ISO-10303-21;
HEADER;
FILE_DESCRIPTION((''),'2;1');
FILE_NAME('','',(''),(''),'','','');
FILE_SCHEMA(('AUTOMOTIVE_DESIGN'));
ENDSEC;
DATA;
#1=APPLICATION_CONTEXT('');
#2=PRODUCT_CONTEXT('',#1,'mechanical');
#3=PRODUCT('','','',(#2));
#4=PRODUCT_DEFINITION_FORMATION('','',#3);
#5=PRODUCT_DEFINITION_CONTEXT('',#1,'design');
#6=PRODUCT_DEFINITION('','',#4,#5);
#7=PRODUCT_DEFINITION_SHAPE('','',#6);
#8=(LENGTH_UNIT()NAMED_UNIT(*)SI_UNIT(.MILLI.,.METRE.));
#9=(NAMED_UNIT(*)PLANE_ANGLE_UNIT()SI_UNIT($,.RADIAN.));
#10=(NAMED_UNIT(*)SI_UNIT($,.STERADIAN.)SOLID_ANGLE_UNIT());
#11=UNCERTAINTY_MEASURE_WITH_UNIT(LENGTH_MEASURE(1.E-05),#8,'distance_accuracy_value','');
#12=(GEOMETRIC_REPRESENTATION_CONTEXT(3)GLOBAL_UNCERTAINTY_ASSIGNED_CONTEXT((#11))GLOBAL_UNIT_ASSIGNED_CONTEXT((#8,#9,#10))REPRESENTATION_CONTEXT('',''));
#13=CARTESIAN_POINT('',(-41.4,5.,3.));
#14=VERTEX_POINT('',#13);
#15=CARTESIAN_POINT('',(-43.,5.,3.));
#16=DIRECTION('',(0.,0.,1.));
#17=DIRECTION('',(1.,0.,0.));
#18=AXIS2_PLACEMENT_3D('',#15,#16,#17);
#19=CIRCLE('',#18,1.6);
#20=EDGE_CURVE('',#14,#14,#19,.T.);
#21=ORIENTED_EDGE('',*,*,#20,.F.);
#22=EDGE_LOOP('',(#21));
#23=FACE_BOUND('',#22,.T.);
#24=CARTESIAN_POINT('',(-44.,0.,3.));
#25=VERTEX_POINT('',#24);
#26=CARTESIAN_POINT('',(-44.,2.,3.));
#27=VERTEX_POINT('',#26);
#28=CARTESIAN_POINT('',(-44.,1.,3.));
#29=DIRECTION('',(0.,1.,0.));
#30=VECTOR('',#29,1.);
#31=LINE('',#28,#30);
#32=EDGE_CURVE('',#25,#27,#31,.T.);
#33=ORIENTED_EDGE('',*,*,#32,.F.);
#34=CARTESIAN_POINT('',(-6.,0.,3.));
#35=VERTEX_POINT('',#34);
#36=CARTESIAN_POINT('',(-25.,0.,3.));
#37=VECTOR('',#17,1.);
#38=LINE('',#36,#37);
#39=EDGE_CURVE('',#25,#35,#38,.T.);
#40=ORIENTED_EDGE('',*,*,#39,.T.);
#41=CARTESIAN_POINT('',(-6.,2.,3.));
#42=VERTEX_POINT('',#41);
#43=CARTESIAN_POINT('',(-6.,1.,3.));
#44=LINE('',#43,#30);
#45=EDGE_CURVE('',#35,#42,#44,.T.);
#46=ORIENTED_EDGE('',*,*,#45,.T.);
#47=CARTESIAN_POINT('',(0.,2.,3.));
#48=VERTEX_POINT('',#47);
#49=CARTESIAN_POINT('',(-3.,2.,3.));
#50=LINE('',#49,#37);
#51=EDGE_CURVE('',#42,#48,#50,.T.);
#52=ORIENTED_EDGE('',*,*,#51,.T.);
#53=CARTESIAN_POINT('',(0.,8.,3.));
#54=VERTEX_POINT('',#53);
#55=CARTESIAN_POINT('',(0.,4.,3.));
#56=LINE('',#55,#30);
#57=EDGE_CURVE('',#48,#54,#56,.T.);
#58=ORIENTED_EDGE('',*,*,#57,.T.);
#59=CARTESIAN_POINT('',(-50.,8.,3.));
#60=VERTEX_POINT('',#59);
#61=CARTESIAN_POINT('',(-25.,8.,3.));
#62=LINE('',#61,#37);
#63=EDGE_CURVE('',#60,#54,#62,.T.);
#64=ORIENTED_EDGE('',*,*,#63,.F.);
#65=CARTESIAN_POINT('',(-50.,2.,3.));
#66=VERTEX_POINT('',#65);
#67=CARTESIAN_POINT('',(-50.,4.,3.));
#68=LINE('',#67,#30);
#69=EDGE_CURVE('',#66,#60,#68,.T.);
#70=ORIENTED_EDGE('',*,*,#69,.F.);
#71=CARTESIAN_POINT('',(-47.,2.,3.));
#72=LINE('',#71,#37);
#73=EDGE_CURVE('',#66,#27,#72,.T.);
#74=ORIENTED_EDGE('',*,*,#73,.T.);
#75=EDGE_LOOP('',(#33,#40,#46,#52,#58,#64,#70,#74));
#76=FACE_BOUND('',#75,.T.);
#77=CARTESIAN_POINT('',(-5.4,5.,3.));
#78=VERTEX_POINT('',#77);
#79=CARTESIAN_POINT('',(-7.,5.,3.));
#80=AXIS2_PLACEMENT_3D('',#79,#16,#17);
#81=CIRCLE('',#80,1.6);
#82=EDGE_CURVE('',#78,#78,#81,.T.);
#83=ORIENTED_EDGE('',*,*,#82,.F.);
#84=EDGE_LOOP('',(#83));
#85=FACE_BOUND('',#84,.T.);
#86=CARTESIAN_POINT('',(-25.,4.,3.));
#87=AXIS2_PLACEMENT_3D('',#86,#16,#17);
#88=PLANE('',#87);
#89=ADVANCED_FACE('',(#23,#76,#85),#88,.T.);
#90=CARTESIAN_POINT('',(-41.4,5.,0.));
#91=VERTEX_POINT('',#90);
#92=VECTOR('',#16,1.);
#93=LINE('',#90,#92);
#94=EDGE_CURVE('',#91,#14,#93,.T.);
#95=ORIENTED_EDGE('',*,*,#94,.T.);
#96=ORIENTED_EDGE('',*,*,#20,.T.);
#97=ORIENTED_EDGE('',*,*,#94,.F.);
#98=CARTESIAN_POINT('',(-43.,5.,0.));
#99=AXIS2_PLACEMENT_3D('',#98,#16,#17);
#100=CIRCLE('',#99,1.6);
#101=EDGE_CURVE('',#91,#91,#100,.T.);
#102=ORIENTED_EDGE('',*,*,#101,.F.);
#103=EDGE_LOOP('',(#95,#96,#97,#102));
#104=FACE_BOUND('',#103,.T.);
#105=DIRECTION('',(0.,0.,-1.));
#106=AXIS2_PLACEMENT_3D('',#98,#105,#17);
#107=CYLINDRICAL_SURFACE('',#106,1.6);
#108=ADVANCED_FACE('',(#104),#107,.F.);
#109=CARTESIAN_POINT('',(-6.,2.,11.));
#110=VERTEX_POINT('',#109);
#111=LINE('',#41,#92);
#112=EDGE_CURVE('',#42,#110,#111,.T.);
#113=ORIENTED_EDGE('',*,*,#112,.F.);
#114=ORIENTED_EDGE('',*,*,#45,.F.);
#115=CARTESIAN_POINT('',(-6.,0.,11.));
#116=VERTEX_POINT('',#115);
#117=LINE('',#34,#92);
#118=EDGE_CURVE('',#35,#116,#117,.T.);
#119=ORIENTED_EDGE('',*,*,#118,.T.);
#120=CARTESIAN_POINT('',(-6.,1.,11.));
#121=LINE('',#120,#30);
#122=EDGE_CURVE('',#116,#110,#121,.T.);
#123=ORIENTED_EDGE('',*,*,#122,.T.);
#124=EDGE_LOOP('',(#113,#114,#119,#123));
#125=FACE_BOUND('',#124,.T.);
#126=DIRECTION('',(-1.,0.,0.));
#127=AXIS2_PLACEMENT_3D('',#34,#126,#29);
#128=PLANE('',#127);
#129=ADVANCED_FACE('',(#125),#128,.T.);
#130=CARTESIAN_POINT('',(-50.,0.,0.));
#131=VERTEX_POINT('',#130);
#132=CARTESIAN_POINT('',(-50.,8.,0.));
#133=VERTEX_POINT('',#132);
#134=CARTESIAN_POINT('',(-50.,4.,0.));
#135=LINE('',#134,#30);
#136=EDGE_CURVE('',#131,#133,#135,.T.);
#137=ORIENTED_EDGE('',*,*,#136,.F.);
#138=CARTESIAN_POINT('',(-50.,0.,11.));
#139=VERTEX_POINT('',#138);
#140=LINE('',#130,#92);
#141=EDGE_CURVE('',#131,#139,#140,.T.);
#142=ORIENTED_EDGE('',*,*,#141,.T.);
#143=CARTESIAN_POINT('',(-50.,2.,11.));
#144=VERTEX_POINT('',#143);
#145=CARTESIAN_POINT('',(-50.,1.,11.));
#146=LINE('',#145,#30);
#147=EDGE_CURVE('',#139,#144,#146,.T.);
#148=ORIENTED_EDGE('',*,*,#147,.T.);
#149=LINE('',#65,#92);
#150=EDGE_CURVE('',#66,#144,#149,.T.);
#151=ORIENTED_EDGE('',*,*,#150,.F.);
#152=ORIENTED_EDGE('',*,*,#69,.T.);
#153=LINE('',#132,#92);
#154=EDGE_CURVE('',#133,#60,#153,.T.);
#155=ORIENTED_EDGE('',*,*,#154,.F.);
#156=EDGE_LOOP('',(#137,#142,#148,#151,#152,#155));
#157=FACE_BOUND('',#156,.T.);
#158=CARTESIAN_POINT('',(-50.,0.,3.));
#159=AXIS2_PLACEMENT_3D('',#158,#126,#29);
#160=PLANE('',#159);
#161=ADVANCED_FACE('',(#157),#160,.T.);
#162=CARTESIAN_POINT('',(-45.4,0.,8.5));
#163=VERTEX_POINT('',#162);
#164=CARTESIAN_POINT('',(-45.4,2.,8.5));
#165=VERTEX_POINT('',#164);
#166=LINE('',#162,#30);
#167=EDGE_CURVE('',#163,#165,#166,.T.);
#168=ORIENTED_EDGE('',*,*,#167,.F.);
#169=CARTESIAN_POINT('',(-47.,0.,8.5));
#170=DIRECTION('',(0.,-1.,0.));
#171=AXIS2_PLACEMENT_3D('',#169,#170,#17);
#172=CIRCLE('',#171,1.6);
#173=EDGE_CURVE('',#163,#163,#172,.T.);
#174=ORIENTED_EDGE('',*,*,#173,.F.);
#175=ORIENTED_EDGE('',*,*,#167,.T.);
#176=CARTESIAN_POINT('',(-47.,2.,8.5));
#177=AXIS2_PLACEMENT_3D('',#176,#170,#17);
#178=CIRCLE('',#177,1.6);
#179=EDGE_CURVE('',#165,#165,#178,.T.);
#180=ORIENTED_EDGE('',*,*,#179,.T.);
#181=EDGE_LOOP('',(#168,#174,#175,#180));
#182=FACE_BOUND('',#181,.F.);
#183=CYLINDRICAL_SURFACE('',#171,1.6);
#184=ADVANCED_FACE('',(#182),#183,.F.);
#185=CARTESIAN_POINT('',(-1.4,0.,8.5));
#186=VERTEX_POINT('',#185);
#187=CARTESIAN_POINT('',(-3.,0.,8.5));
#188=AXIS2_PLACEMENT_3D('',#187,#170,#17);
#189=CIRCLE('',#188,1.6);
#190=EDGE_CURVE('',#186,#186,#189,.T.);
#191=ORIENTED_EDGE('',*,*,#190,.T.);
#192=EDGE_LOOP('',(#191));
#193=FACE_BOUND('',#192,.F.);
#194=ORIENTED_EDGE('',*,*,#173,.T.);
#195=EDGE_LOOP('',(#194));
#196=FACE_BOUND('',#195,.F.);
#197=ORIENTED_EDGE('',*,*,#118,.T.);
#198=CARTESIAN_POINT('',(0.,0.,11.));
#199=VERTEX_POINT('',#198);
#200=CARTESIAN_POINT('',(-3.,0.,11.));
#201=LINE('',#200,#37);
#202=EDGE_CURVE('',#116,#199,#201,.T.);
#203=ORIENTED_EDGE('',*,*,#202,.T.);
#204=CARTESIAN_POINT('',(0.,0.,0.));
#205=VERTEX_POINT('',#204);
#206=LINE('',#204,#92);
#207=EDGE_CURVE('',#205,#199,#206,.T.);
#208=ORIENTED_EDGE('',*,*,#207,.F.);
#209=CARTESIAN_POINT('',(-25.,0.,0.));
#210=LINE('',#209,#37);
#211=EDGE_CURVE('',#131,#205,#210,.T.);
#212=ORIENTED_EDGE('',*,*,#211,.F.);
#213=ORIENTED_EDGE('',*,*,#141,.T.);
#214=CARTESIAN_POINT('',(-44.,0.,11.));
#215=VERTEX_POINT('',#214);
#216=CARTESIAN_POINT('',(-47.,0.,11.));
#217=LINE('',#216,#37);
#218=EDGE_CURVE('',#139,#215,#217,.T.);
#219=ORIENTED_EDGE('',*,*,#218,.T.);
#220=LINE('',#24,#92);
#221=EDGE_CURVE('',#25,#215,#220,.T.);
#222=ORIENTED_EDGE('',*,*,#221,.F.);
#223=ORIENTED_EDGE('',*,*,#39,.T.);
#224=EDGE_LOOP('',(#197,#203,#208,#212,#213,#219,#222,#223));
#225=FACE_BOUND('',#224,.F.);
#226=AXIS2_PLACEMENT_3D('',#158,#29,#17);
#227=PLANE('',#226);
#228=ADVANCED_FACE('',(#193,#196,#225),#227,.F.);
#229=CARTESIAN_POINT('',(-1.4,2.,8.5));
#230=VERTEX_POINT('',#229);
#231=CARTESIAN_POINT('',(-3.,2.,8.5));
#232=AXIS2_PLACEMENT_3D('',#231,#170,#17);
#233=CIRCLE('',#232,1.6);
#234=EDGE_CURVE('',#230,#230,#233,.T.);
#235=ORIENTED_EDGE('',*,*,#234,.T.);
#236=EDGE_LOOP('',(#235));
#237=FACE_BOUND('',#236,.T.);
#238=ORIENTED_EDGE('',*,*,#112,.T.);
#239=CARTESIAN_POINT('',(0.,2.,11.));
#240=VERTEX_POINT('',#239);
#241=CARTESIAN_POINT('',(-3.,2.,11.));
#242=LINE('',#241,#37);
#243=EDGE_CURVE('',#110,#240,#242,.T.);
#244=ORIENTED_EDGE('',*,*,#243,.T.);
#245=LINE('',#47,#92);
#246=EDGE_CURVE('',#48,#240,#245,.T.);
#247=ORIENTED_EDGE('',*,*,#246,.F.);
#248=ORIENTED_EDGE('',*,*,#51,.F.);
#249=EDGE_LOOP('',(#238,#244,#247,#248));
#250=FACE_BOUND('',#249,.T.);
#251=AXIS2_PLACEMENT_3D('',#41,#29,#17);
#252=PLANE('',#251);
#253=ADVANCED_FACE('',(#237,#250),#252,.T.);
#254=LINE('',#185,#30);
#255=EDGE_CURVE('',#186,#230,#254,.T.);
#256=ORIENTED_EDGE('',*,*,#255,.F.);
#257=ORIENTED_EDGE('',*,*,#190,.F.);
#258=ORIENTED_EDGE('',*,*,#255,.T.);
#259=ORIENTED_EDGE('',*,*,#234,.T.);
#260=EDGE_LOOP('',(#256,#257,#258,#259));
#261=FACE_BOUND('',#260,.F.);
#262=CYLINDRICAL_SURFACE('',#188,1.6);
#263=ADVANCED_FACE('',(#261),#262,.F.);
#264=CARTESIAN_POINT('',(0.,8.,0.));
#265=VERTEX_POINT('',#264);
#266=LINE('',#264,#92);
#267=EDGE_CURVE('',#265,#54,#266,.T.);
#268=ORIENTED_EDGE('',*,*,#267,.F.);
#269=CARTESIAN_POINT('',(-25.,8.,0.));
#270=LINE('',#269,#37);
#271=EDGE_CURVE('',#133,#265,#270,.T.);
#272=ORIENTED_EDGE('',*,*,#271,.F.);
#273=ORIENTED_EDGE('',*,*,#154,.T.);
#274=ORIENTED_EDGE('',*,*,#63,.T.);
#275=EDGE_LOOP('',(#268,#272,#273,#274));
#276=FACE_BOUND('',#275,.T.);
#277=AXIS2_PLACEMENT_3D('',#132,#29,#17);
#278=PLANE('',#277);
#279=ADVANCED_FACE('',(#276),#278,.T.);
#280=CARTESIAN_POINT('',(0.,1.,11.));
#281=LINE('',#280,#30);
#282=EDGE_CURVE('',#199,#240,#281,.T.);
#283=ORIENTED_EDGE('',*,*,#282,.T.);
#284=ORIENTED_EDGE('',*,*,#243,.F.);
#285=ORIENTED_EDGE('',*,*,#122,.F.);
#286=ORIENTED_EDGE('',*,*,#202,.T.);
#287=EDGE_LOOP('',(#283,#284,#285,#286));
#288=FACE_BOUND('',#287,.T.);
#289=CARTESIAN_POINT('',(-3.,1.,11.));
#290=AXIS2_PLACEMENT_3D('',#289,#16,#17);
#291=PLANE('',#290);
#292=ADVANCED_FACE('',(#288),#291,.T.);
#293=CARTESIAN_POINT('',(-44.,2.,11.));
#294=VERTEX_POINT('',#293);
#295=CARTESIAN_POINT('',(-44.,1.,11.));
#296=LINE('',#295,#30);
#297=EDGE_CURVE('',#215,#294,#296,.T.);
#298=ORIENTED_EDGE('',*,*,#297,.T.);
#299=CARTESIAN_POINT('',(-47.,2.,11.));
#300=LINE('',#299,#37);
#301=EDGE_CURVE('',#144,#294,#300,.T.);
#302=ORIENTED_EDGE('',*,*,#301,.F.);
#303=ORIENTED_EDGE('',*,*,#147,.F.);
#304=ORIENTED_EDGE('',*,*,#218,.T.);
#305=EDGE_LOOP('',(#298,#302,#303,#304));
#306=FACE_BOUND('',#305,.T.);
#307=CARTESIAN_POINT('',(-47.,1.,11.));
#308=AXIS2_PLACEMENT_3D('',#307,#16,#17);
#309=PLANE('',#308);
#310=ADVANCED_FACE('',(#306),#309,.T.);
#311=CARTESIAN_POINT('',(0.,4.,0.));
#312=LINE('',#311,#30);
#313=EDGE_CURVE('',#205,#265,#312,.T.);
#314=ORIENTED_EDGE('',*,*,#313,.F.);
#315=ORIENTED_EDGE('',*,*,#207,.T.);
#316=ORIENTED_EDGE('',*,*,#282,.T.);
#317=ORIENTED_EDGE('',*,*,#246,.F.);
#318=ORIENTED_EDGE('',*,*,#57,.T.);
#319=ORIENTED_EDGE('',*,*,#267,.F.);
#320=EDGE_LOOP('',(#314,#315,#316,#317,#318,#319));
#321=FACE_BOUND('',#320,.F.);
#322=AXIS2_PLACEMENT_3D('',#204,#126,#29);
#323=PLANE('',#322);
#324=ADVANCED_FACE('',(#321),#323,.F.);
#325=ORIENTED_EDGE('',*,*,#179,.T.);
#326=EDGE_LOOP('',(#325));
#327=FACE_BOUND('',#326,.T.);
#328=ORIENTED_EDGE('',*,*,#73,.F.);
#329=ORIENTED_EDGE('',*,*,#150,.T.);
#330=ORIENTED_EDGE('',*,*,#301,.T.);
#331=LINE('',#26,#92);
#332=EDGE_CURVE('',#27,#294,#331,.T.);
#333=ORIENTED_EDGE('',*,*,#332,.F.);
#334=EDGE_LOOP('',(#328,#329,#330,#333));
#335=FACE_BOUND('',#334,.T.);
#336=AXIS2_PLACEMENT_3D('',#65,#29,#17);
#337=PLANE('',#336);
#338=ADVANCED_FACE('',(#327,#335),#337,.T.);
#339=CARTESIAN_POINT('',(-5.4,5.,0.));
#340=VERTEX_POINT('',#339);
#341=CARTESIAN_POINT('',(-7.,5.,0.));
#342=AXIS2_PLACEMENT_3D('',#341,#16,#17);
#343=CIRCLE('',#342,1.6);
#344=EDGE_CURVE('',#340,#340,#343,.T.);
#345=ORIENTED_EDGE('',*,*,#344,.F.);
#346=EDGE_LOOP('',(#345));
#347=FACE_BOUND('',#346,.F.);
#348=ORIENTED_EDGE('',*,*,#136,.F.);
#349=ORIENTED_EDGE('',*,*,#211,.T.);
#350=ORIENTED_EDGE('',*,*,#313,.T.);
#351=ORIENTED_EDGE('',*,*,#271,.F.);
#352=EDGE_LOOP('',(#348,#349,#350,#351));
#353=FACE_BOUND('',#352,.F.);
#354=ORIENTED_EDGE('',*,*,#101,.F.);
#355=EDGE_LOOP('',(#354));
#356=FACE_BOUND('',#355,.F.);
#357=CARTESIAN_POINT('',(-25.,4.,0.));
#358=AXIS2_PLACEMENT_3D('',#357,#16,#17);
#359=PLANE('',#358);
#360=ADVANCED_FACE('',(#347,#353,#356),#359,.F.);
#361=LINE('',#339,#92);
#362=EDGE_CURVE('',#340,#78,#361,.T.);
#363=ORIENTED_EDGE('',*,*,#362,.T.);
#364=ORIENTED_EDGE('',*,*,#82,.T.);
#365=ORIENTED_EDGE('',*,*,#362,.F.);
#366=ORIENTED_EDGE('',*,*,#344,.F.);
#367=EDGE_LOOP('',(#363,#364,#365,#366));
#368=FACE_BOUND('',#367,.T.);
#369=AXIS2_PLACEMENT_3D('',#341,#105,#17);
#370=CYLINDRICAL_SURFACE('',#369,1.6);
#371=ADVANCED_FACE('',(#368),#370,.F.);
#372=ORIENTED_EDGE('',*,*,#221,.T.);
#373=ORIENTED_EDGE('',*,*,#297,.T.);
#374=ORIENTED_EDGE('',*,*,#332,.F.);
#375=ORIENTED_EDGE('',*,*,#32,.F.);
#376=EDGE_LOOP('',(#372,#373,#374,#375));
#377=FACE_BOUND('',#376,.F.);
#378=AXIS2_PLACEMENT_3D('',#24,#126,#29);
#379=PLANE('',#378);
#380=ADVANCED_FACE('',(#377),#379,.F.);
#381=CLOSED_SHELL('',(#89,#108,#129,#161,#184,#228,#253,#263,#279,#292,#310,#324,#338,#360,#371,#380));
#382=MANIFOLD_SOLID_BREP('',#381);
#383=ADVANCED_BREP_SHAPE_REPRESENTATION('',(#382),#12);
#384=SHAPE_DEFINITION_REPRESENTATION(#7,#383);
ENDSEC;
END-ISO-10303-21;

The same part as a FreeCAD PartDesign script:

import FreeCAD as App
import Part
import Sketcher


def add_polygon(sketch, points):
    """Adds a closed chain of lines whose ends are joined by coincident constraints."""
    first, n = sketch.GeometryCount, len(points)
    for a, b in zip(points, points[1:] + points[:1]):
        sketch.addGeometry(Part.LineSegment(App.Vector(*a, 0), App.Vector(*b, 0)), False)
    for i in range(n):
        sketch.addConstraint(Sketcher.Constraint("Coincident", first + i, 2, first + (i + 1) % n, 1))

doc = App.newDocument("Part")
body = doc.addObject("PartDesign::Body", "Body")

# Sketch on XY plane
sketch1 = body.newObject("Sketcher::SketchObject", "Sketch")
sketch1.AttachmentSupport = (doc.getObject("XY_Plane"), [""])
sketch1.MapMode = "FlatFace"
add_polygon(sketch1, [(-50, 8), (-50, 0), (0, 0), (0, 8)])  # lines 0-3
sketch1.addGeometry(Part.Circle(App.Vector(-43, 5, 0), App.Vector(0, 0, 1), 1.6), False)  # 4
sketch1.addGeometry(Part.Circle(App.Vector(-7, 5, 0), App.Vector(0, 0, 1), 1.6), False)  # 5
sketch1.addConstraint([
    Sketcher.Constraint("Vertical", 0),
    Sketcher.Constraint("Horizontal", 1),
    Sketcher.Constraint("Vertical", 2),
    Sketcher.Constraint("Horizontal", 3),
    Sketcher.Constraint("Coincident", 1, 2, -1, 1),
    Sketcher.Constraint("Equal", 4, 5),
    Sketcher.Constraint("Horizontal", 4, 3, 5, 3),
    Sketcher.Constraint("Diameter", 4, 3.2),
    Sketcher.Constraint("DistanceX", 1, 1, 1, 2, 50.0),
    Sketcher.Constraint("DistanceY", 0, 2, 0, 1, 8.0),
    Sketcher.Constraint("DistanceX", 4, 3, -1, 1, 43.0),
    Sketcher.Constraint("DistanceY", -1, 1, 4, 3, 5.0),
    Sketcher.Constraint("DistanceX", 5, 3, -1, 1, 7.0),
])
pad1 = body.newObject("PartDesign::Pad", "Pad")
pad1.Profile = sketch1
pad1.Length = 3

# Sketch on XY plane
sketch2 = body.newObject("Sketcher::SketchObject", "Sketch001")
sketch2.AttachmentSupport = (doc.getObject("XY_Plane"), [""])
sketch2.MapMode = "FlatFace"
sketch2.AttachmentOffset = App.Placement(App.Vector(0, 0, 3), App.Rotation())
add_polygon(sketch2, [(-50, 2), (-50, 0), (-44, 0), (-44, 2)])  # lines 0-3
add_polygon(sketch2, [(-6, 2), (-6, 0), (0, 0), (0, 2)])  # lines 4-7
sketch2.addConstraint([
    Sketcher.Constraint("Vertical", 0),
    Sketcher.Constraint("Horizontal", 1),
    Sketcher.Constraint("Vertical", 2),
    Sketcher.Constraint("Horizontal", 3),
    Sketcher.Constraint("Vertical", 4),
    Sketcher.Constraint("Horizontal", 5),
    Sketcher.Constraint("Vertical", 6),
    Sketcher.Constraint("Horizontal", 7),
    Sketcher.Constraint("Coincident", 5, 2, -1, 1),
    Sketcher.Constraint("PointOnObject", 0, 2, -1),
    Sketcher.Constraint("Horizontal", 3, 2, 6, 2),
    Sketcher.Constraint("Equal", 3, 5),
    Sketcher.Constraint("DistanceX", 1, 1, 1, 2, 6.0),
    Sketcher.Constraint("DistanceY", 0, 2, 0, 1, 2.0),
    Sketcher.Constraint("DistanceX", 0, 2, -1, 1, 50.0),
])
pad2 = body.newObject("PartDesign::Pad", "Pad001")
pad2.Profile = sketch2
pad2.Length = 8

# Sketch on XZ plane
sketch3 = body.newObject("Sketcher::SketchObject", "Sketch002")
sketch3.AttachmentSupport = (doc.getObject("XZ_Plane"), [""])
sketch3.MapMode = "FlatFace"
sketch3.addGeometry([
    Part.Circle(App.Vector(-47, 8.5, 0), App.Vector(0, 0, 1), 1.6),
    Part.Circle(App.Vector(-3, 8.5, 0), App.Vector(0, 0, 1), 1.6),
], False)
sketch3.addConstraint([
    Sketcher.Constraint("Equal", 0, 1),
    Sketcher.Constraint("Horizontal", 0, 3, 1, 3),
    Sketcher.Constraint("Diameter", 0, 3.2),
    Sketcher.Constraint("DistanceX", 0, 3, -1, 1, 47.0),
    Sketcher.Constraint("DistanceX", 1, 3, -1, 1, 3.0),
    Sketcher.Constraint("DistanceY", -1, 1, 0, 3, 8.5),
])
pocket1 = body.newObject("PartDesign::Pocket", "Pocket")
pocket1.Profile = sketch3
pocket1.Length = 5

doc.recompute()
